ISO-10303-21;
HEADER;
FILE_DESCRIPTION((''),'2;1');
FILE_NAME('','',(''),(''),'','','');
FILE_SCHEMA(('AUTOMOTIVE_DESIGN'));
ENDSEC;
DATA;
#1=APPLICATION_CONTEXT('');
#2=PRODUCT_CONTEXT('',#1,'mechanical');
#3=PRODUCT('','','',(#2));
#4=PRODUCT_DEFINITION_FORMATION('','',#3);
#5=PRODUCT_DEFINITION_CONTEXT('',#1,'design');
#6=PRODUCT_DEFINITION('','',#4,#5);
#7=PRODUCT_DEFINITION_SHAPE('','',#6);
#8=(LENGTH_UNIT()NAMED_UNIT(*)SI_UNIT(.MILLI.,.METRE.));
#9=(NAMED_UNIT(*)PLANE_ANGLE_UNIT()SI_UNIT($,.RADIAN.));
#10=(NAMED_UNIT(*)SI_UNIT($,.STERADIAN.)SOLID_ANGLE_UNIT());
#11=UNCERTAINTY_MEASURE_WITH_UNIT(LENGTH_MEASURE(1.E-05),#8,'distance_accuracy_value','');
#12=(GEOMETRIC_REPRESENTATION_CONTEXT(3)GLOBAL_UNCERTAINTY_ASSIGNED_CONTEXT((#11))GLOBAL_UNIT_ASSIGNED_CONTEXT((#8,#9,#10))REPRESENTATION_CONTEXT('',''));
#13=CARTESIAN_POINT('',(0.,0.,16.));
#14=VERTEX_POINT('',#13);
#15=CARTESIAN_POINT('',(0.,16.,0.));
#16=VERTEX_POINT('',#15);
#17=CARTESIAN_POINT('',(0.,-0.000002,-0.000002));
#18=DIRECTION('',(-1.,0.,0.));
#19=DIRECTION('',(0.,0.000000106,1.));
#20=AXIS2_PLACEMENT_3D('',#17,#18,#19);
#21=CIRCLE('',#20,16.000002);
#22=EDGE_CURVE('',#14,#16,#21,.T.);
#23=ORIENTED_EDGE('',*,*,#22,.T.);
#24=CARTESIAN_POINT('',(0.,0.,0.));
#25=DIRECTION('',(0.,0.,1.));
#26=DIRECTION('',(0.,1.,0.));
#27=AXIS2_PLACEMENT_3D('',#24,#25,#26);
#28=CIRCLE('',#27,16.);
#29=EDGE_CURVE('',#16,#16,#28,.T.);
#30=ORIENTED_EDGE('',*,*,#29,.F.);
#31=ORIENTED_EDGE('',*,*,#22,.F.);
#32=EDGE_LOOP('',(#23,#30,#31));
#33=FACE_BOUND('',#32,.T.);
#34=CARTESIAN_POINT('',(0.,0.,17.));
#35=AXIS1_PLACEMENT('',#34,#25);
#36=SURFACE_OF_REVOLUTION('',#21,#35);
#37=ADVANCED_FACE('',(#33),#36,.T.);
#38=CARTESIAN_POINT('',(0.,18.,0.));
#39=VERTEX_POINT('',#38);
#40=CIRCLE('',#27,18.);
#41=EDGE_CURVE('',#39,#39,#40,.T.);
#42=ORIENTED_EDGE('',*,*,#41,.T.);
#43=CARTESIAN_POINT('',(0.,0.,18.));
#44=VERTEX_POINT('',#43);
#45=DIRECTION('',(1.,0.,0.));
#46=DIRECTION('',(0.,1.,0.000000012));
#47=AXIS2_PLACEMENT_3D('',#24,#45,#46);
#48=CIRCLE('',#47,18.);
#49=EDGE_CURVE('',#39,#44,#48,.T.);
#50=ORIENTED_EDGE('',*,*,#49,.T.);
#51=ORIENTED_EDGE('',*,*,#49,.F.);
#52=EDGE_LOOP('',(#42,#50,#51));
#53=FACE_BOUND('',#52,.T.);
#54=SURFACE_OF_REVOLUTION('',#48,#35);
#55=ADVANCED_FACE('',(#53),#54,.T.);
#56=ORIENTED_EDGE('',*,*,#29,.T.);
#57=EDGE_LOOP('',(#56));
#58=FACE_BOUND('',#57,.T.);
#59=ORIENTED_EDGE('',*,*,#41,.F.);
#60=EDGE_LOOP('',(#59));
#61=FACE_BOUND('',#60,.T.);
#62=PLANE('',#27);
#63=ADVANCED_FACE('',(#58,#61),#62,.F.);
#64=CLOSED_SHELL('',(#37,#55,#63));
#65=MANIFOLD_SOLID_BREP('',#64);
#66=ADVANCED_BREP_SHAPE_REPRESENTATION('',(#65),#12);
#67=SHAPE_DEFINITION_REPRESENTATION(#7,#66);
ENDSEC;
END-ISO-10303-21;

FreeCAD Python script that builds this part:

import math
import FreeCAD as App
import Part
import Sketcher
from FreeCAD import Vector

doc = App.newDocument("Part")
body = doc.addObject("PartDesign::Body", "Body")

# Sketch on YZ plane
sketch1 = body.newObject("Sketcher::SketchObject", "Sketch")
sketch1.AttachmentSupport = (doc.getObject("YZ_Plane"), [""])
sketch1.MapMode = "FlatFace"
sketch1.addGeometry(Part.ArcOfCircle(Part.Circle(Vector(0, 0, 0), Vector(0, 0, 1), 16), math.radians(0), math.radians(90)), False)
sketch1.addGeometry(Part.LineSegment(Vector(16, 0, 0), Vector(18, 0, 0)), False)
sketch1.addGeometry(Part.ArcOfCircle(Part.Circle(Vector(0, 0, 0), Vector(0, 0, 1), 18), math.radians(0), math.radians(90)), False)
sketch1.addGeometry(Part.LineSegment(Vector(0, 18, 0), Vector(0, 16, 0)), False)
sketch1.addConstraint(Sketcher.Constraint("Coincident", 0, 1, 1, 1))
sketch1.addConstraint(Sketcher.Constraint("Coincident", 1, 2, 2, 1))
sketch1.addConstraint(Sketcher.Constraint("Coincident", 2, 2, 3, 1))
sketch1.addConstraint(Sketcher.Constraint("Coincident", 3, 2, 0, 2))
sketch1.addConstraint(Sketcher.Constraint("Horizontal", 1))
sketch1.addConstraint(Sketcher.Constraint("Vertical", 3))
sketch1.addConstraint(Sketcher.Constraint("Coincident", 0, 3, -1, 1))
sketch1.addConstraint(Sketcher.Constraint("Coincident", 2, 3, -1, 1))
sketch1.addConstraint(Sketcher.Constraint("PointOnObject", 0, 1, -1))
sketch1.addConstraint(Sketcher.Constraint("PointOnObject", 2, 2, -2))
sketch1.addConstraint(Sketcher.Constraint("Radius", 0, 16.000002))
sketch1.addConstraint(Sketcher.Constraint("Radius", 2, 18.0))
revolution = body.newObject("PartDesign::Revolution", "Revolution")
revolution.Profile = sketch1
revolution.ReferenceAxis = (sketch1, ["V_Axis"])
revolution.Angle = 360

doc.recompute()
